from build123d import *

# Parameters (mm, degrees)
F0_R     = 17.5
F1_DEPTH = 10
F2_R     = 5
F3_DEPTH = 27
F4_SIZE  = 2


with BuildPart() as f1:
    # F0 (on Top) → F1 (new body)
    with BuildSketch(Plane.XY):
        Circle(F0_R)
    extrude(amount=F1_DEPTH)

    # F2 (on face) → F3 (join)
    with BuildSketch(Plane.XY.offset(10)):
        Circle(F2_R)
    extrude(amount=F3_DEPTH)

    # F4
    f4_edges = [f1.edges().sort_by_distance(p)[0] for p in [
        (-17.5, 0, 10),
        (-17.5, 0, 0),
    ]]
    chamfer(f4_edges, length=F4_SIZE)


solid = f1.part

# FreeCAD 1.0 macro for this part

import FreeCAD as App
import Part
import Sketcher
from FreeCAD import Vector


def edges_at(feature, points):
    """Names of the edges that pass closest to the given points."""
    edges = feature.Shape.Edges
    near = lambda p: min(range(len(edges)), key=lambda i: edges[i].distToShape(Part.Vertex(*p))[0])
    return sorted({f"Edge{near(p) + 1}" for p in points})

doc = App.newDocument("Part")
params = doc.addObject("Spreadsheet::Sheet", "Params")
for row, (alias, value) in enumerate([
    ("sketch1_diameter", "35 mm"),
    ("pad1_length", "10 mm"),
    ("sketch2_diameter", "10 mm"),
    ("pad2_length", "27 mm"),
    ("chamfer_size", "2 mm"),
], start=1):
    params.set(f"A{row}", alias)
    params.set(f"B{row}", "=" + value)
    params.setAlias(f"B{row}", alias)

body = doc.addObject("PartDesign::Body", "Body")

sketch1 = body.newObject("Sketcher::SketchObject", "Sketch")
sketch1.AttachmentSupport = (doc.getObject("XY_Plane"), [""])
sketch1.MapMode = "FlatFace"
sketch1.addGeometry(Part.Circle(Vector(0, 0, 0), Vector(0, 0, 1), 18), False)
sketch1.addConstraint([
    Sketcher.Constraint("Coincident", 0, 3, -1, 1),
    Sketcher.Constraint("Diameter", 0, 35.0),
])
sketch1.setExpression("Constraints[1]", "Params.sketch1_diameter")
pad1 = body.newObject("PartDesign::Pad", "Pad")
pad1.Profile = sketch1
pad1.setExpression("Length", "Params.pad1_length")

sketch2 = body.newObject("Sketcher::SketchObject", "Sketch001")
sketch2.AttachmentSupport = (doc.getObject("XY_Plane"), [""])
sketch2.MapMode = "FlatFace"
sketch2.AttachmentOffset = App.Placement(Vector(0, 0, 10), App.Rotation())
sketch2.addGeometry(Part.Circle(Vector(0, 0, 0), Vector(0, 0, 1), 5), False)
sketch2.addConstraint([
    Sketcher.Constraint("Coincident", 0, 3, -1, 1),
    Sketcher.Constraint("Diameter", 0, 10.0),
])
sketch2.setExpression("Constraints[1]", "Params.sketch2_diameter")
pad2 = body.newObject("PartDesign::Pad", "Pad001")
pad2.Profile = sketch2
pad2.setExpression("Length", "Params.pad2_length")
doc.recompute()

chamfer = body.newObject("PartDesign::Chamfer", "Chamfer")
chamfer.Base = (pad2, edges_at(pad2, [(-17.5, 0, 10), (-17.5, 0, 0)]))
chamfer.setExpression("Size", "Params.chamfer_size")

doc.recompute()
